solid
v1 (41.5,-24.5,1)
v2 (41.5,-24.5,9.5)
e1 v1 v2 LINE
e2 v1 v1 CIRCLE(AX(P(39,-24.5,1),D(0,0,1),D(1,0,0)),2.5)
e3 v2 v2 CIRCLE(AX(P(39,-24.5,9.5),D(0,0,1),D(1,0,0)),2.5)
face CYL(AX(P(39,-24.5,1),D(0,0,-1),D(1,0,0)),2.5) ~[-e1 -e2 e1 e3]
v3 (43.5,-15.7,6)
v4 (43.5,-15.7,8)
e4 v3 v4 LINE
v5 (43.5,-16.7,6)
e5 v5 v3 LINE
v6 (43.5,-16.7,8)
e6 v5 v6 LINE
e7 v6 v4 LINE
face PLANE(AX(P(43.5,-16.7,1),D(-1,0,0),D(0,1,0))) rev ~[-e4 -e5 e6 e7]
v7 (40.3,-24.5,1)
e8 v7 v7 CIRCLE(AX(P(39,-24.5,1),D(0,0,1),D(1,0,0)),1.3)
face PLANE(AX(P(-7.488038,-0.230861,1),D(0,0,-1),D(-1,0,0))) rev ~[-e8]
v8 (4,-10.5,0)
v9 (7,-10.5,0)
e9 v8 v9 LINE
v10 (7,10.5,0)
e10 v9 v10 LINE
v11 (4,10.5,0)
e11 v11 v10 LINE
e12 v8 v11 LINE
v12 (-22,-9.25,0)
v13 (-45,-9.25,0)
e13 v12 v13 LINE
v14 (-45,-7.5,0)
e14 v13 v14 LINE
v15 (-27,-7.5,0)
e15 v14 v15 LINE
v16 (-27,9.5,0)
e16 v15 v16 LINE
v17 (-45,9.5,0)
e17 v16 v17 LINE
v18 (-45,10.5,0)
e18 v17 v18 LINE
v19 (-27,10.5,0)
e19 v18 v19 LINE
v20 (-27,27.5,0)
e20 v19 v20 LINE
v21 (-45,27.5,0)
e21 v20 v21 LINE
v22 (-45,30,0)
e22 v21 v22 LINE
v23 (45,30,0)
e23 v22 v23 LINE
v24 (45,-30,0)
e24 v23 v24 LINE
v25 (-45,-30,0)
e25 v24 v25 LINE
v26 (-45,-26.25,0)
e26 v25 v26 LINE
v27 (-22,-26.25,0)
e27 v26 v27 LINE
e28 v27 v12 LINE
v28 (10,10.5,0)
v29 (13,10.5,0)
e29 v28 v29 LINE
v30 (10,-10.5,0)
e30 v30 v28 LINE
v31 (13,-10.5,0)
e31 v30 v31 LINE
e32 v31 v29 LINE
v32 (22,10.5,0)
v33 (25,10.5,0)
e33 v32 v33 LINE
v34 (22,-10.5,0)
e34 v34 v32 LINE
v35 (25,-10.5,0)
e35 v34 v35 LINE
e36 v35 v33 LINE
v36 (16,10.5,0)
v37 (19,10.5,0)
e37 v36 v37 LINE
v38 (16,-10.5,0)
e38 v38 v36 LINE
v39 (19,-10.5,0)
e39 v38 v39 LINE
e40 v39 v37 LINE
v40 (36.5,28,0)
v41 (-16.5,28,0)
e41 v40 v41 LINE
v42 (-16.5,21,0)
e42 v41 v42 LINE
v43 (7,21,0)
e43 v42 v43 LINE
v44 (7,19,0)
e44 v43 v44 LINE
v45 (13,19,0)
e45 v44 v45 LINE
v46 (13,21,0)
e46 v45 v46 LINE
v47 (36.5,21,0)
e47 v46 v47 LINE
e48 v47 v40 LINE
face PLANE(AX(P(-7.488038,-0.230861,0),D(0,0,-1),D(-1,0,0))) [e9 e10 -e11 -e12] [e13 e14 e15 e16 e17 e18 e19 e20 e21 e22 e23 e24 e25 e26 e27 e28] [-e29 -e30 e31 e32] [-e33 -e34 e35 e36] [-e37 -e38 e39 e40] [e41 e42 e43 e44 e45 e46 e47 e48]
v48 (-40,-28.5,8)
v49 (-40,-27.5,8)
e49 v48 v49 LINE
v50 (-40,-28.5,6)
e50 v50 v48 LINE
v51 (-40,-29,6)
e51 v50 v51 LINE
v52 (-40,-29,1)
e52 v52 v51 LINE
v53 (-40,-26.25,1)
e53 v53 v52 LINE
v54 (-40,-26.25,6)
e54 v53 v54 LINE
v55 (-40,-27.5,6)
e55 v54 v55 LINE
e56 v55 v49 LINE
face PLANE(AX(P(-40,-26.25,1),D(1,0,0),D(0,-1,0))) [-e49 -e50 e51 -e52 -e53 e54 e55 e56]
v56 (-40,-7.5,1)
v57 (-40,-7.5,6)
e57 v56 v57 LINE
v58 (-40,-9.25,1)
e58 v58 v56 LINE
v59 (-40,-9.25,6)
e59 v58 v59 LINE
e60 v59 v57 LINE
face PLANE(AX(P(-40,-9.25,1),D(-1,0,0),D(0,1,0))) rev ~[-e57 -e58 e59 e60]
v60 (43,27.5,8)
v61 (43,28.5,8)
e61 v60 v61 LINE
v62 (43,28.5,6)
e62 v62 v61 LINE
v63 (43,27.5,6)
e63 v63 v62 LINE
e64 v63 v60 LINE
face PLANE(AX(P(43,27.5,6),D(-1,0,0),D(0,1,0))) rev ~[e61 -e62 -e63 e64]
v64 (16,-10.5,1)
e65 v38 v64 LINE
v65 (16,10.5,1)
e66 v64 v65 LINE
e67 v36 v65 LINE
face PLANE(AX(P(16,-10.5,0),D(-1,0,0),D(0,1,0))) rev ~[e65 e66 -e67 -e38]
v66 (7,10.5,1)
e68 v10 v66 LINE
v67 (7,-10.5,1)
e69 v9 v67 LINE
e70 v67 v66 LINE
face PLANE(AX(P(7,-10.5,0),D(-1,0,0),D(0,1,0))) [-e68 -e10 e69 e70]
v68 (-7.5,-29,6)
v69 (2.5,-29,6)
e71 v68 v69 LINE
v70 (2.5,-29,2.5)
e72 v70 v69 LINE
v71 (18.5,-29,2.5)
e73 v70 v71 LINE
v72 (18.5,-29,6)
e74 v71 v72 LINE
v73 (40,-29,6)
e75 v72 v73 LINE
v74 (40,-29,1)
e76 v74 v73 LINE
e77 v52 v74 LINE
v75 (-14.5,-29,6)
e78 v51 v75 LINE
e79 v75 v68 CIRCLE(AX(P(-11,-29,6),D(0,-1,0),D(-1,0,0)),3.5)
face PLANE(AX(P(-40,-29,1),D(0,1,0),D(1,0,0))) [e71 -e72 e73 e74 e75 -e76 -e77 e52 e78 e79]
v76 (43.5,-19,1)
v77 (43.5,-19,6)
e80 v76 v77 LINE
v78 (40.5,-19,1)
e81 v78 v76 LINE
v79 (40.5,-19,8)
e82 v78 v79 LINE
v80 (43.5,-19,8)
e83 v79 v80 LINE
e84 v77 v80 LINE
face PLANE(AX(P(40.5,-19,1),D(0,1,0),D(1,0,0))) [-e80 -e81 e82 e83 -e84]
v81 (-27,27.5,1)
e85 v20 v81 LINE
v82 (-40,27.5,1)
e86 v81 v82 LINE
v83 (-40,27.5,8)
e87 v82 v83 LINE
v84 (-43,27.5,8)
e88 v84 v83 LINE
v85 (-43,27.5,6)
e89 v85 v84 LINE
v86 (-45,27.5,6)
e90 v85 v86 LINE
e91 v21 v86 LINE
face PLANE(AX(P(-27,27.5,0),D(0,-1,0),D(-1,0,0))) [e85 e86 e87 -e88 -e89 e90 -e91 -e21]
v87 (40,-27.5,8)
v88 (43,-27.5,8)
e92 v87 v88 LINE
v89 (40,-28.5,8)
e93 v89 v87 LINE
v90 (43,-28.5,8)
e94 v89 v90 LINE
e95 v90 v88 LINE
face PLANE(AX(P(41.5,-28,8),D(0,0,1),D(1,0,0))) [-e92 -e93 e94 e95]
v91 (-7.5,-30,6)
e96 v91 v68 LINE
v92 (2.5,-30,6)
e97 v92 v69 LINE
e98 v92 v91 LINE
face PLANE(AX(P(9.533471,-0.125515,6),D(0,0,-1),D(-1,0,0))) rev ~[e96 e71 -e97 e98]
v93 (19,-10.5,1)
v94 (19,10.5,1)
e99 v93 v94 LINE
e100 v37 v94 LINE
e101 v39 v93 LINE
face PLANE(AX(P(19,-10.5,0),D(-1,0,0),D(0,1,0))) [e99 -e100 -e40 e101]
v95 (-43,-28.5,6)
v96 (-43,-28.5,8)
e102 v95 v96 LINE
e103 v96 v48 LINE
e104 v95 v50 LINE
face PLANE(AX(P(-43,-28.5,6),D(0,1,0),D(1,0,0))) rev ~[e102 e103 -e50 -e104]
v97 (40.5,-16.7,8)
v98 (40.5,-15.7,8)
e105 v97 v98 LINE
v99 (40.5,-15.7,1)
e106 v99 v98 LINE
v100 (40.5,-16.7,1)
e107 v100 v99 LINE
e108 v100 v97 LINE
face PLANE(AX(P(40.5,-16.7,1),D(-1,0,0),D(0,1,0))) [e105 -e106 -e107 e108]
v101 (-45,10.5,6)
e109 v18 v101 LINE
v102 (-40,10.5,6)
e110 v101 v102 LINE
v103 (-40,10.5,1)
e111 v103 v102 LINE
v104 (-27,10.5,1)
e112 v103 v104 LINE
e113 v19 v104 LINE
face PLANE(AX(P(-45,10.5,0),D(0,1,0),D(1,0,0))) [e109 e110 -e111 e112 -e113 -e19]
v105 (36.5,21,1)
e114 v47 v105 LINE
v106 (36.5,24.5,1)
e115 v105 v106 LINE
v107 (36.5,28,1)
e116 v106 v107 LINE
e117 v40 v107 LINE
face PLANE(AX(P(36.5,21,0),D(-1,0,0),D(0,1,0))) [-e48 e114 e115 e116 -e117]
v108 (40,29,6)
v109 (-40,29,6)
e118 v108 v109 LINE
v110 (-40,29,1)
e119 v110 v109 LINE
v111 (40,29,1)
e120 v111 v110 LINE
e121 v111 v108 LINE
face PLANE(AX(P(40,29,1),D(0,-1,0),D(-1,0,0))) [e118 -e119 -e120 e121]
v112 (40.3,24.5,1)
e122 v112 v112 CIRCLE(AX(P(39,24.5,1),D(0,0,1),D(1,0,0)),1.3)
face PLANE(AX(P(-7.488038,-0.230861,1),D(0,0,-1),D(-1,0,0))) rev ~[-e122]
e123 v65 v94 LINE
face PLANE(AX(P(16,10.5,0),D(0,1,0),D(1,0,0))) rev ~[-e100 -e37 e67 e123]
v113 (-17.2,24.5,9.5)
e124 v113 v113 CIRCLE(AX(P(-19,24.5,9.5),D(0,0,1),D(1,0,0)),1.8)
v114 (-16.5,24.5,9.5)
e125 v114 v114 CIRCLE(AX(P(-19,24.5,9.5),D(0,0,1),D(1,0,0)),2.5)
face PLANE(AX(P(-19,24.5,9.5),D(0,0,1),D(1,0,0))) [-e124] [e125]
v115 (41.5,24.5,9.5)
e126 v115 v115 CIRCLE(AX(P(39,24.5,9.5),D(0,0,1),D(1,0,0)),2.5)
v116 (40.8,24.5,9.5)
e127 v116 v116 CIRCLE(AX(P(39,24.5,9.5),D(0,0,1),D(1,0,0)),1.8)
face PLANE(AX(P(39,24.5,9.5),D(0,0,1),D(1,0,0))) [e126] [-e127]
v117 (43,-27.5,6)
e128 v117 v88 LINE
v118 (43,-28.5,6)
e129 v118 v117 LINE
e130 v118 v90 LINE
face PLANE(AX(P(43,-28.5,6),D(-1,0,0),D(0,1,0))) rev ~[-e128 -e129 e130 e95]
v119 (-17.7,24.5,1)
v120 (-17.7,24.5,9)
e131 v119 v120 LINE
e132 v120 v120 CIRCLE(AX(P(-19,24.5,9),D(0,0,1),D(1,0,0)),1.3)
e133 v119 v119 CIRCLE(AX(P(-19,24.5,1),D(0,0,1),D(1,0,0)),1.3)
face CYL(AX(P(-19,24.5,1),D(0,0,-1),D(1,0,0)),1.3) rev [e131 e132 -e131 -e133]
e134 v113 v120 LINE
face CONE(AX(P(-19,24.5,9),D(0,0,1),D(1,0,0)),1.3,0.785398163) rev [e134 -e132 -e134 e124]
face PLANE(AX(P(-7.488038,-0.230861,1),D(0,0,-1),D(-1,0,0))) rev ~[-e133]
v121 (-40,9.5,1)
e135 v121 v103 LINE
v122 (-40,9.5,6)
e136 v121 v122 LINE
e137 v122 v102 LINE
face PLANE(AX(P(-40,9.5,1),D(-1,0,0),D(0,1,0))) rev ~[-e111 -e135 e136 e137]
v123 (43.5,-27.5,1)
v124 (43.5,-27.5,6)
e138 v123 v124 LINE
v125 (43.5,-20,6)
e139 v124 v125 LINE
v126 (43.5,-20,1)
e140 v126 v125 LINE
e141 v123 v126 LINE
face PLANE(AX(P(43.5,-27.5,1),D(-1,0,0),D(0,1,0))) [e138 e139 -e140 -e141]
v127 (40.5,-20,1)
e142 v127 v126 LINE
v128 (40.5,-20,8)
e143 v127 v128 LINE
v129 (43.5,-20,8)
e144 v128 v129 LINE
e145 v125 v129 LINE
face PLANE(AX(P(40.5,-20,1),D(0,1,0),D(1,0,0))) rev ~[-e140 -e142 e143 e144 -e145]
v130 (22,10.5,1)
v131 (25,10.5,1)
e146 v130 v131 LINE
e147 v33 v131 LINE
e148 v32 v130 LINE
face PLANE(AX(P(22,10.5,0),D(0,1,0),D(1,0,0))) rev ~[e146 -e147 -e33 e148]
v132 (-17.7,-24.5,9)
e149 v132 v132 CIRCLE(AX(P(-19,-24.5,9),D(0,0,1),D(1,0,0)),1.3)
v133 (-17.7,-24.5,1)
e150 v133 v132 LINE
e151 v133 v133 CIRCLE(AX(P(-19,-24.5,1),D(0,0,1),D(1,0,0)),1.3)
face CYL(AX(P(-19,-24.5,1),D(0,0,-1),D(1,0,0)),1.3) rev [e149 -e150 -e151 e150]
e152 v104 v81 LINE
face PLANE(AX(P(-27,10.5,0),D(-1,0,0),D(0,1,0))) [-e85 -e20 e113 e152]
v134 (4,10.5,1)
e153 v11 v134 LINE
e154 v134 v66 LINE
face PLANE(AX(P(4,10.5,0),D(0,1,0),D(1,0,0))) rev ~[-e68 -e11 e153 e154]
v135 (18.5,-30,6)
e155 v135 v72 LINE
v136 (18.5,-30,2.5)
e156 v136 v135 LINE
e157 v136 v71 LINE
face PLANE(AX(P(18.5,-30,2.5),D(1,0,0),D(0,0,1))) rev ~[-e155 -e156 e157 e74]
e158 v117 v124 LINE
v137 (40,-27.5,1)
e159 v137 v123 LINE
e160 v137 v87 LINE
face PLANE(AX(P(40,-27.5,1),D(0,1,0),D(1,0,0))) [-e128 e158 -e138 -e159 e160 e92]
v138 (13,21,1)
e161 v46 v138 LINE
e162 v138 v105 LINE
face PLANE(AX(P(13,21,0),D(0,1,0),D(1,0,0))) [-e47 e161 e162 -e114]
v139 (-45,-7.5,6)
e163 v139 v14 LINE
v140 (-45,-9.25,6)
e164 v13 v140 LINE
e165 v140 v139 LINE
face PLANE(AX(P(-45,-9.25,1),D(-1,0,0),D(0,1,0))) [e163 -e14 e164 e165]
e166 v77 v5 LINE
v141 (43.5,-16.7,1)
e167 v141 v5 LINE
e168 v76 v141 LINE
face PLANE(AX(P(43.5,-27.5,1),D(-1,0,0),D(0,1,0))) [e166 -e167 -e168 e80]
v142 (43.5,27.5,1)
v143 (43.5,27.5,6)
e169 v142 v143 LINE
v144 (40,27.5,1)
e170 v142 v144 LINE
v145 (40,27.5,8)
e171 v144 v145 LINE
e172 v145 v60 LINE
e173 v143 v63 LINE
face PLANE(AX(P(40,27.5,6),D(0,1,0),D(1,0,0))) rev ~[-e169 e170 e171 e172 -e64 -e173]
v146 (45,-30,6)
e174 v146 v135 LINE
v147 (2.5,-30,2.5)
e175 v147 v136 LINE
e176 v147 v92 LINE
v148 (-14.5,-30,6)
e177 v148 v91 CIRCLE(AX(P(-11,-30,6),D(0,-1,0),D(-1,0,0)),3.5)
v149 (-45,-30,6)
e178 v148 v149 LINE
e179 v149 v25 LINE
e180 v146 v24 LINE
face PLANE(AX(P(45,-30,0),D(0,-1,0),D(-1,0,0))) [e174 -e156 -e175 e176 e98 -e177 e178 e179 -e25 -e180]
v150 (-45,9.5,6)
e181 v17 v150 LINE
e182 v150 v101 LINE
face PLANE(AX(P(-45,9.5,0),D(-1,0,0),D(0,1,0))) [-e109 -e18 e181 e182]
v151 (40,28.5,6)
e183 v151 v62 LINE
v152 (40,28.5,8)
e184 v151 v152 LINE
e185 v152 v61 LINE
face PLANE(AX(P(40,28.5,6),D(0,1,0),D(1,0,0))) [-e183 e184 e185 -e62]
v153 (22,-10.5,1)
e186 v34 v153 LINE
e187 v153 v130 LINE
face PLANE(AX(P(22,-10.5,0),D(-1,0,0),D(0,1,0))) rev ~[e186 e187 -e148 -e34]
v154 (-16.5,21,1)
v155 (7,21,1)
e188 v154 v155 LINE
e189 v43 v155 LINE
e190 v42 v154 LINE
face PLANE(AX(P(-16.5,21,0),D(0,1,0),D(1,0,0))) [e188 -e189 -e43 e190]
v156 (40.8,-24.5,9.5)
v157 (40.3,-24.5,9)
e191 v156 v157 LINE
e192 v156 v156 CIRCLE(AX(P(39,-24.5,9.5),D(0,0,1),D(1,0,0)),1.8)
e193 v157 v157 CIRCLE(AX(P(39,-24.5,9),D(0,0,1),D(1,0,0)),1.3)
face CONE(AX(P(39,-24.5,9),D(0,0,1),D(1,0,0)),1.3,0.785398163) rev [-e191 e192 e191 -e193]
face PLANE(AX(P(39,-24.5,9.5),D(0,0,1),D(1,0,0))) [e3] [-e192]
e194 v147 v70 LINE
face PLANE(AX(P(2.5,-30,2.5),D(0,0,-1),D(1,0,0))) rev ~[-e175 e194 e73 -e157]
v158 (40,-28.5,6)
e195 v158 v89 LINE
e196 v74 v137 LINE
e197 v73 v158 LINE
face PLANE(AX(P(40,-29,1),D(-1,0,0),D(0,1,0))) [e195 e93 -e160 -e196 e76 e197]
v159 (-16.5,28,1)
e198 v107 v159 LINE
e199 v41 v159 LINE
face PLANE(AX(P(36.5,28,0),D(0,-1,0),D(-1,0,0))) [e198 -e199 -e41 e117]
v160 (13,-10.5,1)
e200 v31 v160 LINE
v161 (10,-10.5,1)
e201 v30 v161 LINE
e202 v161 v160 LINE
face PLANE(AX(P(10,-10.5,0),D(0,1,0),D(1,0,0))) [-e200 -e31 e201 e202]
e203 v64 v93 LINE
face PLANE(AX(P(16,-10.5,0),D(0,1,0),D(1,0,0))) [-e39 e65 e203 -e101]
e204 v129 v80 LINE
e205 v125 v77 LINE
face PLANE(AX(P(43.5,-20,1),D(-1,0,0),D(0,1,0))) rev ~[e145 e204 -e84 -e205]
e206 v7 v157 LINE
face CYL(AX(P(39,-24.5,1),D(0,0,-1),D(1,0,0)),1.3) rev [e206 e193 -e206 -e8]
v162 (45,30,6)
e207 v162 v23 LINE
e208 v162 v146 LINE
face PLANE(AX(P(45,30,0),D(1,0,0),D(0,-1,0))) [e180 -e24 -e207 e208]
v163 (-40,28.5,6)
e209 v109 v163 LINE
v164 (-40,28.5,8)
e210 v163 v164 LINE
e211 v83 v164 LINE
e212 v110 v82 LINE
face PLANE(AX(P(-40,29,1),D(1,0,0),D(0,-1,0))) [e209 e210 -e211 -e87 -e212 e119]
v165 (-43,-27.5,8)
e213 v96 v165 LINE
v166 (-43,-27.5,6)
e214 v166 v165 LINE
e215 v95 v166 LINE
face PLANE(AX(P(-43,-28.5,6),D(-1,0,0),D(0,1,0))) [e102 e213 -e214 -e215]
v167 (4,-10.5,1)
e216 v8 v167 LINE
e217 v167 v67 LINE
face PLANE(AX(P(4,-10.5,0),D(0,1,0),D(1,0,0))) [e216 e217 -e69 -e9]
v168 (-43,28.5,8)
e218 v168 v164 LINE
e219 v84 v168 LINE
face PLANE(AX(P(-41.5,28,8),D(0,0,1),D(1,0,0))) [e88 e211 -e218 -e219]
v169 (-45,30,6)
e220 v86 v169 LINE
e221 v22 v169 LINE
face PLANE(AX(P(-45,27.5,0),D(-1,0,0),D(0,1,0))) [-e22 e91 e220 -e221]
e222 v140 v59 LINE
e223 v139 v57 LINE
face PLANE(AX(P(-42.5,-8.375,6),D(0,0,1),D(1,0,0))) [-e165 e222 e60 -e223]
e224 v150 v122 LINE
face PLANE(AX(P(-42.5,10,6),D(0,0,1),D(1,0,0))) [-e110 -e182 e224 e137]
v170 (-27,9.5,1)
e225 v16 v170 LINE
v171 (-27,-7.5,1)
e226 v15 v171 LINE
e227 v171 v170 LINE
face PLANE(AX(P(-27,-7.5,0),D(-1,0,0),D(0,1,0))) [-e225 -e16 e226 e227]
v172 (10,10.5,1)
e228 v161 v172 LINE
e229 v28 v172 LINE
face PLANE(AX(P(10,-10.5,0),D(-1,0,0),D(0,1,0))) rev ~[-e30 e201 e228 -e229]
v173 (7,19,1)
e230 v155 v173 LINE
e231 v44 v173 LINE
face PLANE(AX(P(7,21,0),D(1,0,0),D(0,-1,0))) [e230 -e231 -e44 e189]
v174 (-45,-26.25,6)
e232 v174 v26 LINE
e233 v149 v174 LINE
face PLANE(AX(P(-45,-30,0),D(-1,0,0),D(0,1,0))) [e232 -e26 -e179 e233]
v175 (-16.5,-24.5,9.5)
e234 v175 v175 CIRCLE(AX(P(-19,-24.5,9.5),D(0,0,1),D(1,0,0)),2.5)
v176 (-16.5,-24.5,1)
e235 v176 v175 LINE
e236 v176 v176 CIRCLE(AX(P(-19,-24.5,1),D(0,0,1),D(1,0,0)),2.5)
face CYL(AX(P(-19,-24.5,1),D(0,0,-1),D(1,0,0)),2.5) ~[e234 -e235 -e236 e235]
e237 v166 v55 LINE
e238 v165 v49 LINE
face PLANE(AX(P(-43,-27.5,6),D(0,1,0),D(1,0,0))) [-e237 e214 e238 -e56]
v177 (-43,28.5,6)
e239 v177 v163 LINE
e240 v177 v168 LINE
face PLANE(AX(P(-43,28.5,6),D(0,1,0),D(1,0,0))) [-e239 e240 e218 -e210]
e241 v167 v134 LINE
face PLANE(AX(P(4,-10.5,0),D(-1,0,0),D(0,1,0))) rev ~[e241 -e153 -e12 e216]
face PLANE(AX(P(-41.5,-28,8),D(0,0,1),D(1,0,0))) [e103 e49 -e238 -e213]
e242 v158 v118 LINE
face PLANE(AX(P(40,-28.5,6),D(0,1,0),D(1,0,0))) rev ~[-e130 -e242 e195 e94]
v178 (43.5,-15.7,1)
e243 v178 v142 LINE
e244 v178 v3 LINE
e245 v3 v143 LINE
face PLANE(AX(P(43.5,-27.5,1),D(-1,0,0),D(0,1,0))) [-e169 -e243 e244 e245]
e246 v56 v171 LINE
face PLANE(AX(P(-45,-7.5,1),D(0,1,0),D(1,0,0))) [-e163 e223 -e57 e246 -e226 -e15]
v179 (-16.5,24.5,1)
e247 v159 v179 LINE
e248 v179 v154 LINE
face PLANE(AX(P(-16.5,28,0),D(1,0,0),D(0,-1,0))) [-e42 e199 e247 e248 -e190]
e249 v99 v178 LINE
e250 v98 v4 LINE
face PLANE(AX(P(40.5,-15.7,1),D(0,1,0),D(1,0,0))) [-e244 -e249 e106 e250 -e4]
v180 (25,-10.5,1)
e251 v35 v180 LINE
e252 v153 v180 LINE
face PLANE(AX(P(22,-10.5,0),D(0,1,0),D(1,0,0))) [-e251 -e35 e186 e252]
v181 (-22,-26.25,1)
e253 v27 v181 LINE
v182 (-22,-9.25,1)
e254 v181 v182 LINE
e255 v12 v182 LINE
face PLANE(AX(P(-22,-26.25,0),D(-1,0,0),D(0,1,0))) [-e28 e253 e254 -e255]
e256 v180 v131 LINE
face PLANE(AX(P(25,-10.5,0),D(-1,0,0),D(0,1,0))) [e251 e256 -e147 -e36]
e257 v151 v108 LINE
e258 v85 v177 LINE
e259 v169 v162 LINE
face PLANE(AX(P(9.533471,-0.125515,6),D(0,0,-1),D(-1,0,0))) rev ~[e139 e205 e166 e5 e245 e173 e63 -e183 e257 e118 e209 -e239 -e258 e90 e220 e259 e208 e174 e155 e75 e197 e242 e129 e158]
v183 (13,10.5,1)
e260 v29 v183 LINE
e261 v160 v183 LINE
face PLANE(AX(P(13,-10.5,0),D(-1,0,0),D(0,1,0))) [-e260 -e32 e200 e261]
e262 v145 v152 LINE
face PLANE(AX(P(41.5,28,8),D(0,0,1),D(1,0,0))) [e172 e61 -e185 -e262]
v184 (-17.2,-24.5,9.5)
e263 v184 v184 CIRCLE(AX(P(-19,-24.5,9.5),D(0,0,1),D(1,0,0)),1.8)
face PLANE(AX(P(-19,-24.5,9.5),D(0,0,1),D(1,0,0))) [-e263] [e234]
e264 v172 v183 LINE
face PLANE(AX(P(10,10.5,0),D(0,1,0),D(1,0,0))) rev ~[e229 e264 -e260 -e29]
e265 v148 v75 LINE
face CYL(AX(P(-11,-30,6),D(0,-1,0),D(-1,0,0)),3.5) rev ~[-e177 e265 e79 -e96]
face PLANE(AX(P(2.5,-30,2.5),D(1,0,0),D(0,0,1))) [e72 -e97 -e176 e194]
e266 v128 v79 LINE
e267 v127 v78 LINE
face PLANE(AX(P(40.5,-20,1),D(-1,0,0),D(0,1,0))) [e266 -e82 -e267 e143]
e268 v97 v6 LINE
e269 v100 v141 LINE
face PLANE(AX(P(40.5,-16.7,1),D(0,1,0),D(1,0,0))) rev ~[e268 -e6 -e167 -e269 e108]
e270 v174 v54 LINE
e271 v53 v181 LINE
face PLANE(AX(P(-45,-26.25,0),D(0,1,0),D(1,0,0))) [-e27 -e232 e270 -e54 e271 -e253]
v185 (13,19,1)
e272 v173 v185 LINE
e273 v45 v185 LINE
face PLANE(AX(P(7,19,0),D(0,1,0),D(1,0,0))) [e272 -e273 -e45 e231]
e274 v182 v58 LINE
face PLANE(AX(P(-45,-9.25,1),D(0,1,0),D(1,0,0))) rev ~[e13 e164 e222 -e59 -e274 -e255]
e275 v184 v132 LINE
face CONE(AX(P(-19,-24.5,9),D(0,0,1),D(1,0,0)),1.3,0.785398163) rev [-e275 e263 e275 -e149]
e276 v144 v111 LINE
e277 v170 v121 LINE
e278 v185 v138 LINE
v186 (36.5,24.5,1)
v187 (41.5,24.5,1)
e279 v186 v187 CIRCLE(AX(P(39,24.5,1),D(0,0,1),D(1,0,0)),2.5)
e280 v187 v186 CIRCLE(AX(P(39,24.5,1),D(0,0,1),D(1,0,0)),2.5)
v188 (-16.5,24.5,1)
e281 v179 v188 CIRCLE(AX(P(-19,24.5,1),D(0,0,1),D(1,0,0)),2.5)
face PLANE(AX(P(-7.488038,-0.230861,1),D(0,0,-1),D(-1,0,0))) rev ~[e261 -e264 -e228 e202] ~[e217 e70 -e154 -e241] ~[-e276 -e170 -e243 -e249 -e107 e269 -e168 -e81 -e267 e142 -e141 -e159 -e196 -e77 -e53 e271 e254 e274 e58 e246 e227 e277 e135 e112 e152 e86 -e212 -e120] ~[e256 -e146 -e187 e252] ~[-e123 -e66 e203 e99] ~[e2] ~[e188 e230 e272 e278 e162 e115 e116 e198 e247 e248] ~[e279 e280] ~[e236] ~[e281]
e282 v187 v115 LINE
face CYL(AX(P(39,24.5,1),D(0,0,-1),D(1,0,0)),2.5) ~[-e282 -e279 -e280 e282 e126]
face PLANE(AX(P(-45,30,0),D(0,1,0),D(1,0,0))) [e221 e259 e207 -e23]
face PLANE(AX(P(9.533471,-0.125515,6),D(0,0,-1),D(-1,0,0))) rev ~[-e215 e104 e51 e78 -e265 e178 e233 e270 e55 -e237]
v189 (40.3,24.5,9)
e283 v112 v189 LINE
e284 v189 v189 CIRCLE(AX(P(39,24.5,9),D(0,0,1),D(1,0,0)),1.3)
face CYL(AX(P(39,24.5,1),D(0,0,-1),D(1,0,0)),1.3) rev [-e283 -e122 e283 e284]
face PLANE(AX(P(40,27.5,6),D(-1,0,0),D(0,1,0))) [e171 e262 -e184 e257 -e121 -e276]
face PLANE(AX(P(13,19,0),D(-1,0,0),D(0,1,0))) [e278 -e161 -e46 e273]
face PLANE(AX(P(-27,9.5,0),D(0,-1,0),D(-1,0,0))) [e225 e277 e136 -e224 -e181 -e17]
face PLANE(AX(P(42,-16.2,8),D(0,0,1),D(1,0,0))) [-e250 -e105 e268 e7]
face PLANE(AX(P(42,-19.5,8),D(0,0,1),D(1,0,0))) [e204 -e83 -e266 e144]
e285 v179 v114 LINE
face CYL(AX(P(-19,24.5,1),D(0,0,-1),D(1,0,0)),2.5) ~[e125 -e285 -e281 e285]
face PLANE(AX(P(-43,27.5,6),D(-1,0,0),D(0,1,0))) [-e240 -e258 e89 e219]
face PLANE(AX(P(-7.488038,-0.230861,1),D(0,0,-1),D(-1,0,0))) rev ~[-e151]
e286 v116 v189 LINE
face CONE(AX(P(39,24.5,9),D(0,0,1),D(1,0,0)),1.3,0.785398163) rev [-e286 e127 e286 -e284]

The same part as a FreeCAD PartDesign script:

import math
import FreeCAD as App
import Part
import Sketcher
from FreeCAD import Vector


def edges_at(feature, points):
    """Names of the edges that pass closest to the given points."""
    edges = feature.Shape.Edges
    near = lambda p: min(range(len(edges)), key=lambda i: edges[i].distToShape(Part.Vertex(*p))[0])
    return sorted({f"Edge{near(p) + 1}" for p in points})

doc = App.newDocument("Part")
body = doc.addObject("PartDesign::Body", "Body")

# Sketch on XY plane
sketch1 = body.newObject("Sketcher::SketchObject", "Sketch")
sketch1.AttachmentSupport = (doc.getObject("XY_Plane"), [""])
sketch1.MapMode = "FlatFace"
sketch1.addGeometry([
    Part.LineSegment(Vector(45, 30, 0), Vector(-45, 30, 0)),  # 0
    Part.LineSegment(Vector(-45, 30, 0), Vector(-45, 27.5, 0)),  # 1
    Part.LineSegment(Vector(-45, 27.5, 0), Vector(-27, 27.5, 0)),  # 2
    Part.LineSegment(Vector(-27, 27.5, 0), Vector(-27, 10.5, 0)),  # 3
    Part.LineSegment(Vector(-27, 10.5, 0), Vector(-45, 10.5, 0)),  # 4
    Part.LineSegment(Vector(-45, 10.5, 0), Vector(-45, 9.5, 0)),  # 5
    Part.LineSegment(Vector(-45, 9.5, 0), Vector(-27, 9.5, 0)),  # 6
    Part.LineSegment(Vector(-27, 9.5, 0), Vector(-27, -7.5, 0)),  # 7
    Part.LineSegment(Vector(-27, -7.5, 0), Vector(-45, -7.5, 0)),  # 8
    Part.LineSegment(Vector(-45, -7.5, 0), Vector(-45, -9.2, 0)),  # 9
    Part.LineSegment(Vector(-45, -9.2, 0), Vector(-22, -9.2, 0)),  # 10
    Part.LineSegment(Vector(-22, -9.2, 0), Vector(-22, -26.2, 0)),  # 11
    Part.LineSegment(Vector(-22, -26.2, 0), Vector(-45, -26.2, 0)),  # 12
    Part.LineSegment(Vector(-45, -26.2, 0), Vector(-45, -30, 0)),  # 13
    Part.LineSegment(Vector(-45, -30, 0), Vector(45, -30, 0)),  # 14
    Part.LineSegment(Vector(45, -30, 0), Vector(45, 30, 0)),  # 15
    Part.LineSegment(Vector(22, -10.5, 0), Vector(22, 10.5, 0)),  # 16
    Part.LineSegment(Vector(22, 10.5, 0), Vector(25, 10.5, 0)),  # 17
    Part.LineSegment(Vector(25, 10.5, 0), Vector(25, -10.5, 0)),  # 18
    Part.LineSegment(Vector(25, -10.5, 0), Vector(22, -10.5, 0)),  # 19
    Part.LineSegment(Vector(16, -10.5, 0), Vector(16, 10.5, 0)),  # 20
    Part.LineSegment(Vector(16, 10.5, 0), Vector(19, 10.5, 0)),  # 21
    Part.LineSegment(Vector(19, 10.5, 0), Vector(19, -10.5, 0)),  # 22
    Part.LineSegment(Vector(19, -10.5, 0), Vector(16, -10.5, 0)),  # 23
    Part.LineSegment(Vector(10, -10.5, 0), Vector(10, 10.5, 0)),  # 24
    Part.LineSegment(Vector(10, 10.5, 0), Vector(13, 10.5, 0)),  # 25
    Part.LineSegment(Vector(13, 10.5, 0), Vector(13, -10.5, 0)),  # 26
    Part.LineSegment(Vector(13, -10.5, 0), Vector(10, -10.5, 0)),  # 27
    Part.LineSegment(Vector(4, -10.5, 0), Vector(4, 10.5, 0)),  # 28
    Part.LineSegment(Vector(4, 10.5, 0), Vector(7, 10.5, 0)),  # 29
    Part.LineSegment(Vector(7, 10.5, 0), Vector(7, -10.5, 0)),  # 30
    Part.LineSegment(Vector(7, -10.5, 0), Vector(4, -10.5, 0)),  # 31
    Part.LineSegment(Vector(36.5, 21, 0), Vector(13, 21, 0)),  # 32
    Part.LineSegment(Vector(13, 21, 0), Vector(13, 19, 0)),  # 33
    Part.LineSegment(Vector(13, 19, 0), Vector(7, 19, 0)),  # 34
    Part.LineSegment(Vector(7, 19, 0), Vector(7, 21, 0)),  # 35
    Part.LineSegment(Vector(7, 21, 0), Vector(-16.5, 21, 0)),  # 36
    Part.LineSegment(Vector(-16.5, 21, 0), Vector(-16.5, 28, 0)),  # 37
    Part.LineSegment(Vector(-16.5, 28, 0), Vector(36.5, 28, 0)),  # 38
    Part.LineSegment(Vector(36.5, 28, 0), Vector(36.5, 21, 0)),  # 39
], False)
sketch1.addConstraint([
    Sketcher.Constraint("Coincident", 0, 2, 1, 1),
    Sketcher.Constraint("Coincident", 1, 2, 2, 1),
    Sketcher.Constraint("Coincident", 2, 2, 3, 1),
    Sketcher.Constraint("Coincident", 3, 2, 4, 1),
    Sketcher.Constraint("Coincident", 4, 2, 5, 1),
    Sketcher.Constraint("Coincident", 5, 2, 6, 1),
    Sketcher.Constraint("Coincident", 6, 2, 7, 1),
    Sketcher.Constraint("Coincident", 7, 2, 8, 1),
    Sketcher.Constraint("Coincident", 8, 2, 9, 1),
    Sketcher.Constraint("Coincident", 9, 2, 10, 1),
    Sketcher.Constraint("Coincident", 10, 2, 11, 1),
    Sketcher.Constraint("Coincident", 11, 2, 12, 1),
    Sketcher.Constraint("Coincident", 12, 2, 13, 1),
    Sketcher.Constraint("Coincident", 13, 2, 14, 1),
    Sketcher.Constraint("Coincident", 14, 2, 15, 1),
    Sketcher.Constraint("Coincident", 15, 2, 0, 1),
    Sketcher.Constraint("Coincident", 16, 2, 17, 1),
    Sketcher.Constraint("Coincident", 17, 2, 18, 1),
    Sketcher.Constraint("Coincident", 18, 2, 19, 1),
    Sketcher.Constraint("Coincident", 19, 2, 16, 1),
    Sketcher.Constraint("Coincident", 20, 2, 21, 1),
    Sketcher.Constraint("Coincident", 21, 2, 22, 1),
    Sketcher.Constraint("Coincident", 22, 2, 23, 1),
    Sketcher.Constraint("Coincident", 23, 2, 20, 1),
    Sketcher.Constraint("Coincident", 24, 2, 25, 1),
    Sketcher.Constraint("Coincident", 25, 2, 26, 1),
    Sketcher.Constraint("Coincident", 26, 2, 27, 1),
    Sketcher.Constraint("Coincident", 27, 2, 24, 1),
    Sketcher.Constraint("Coincident", 28, 2, 29, 1),
    Sketcher.Constraint("Coincident", 29, 2, 30, 1),
    Sketcher.Constraint("Coincident", 30, 2, 31, 1),
    Sketcher.Constraint("Coincident", 31, 2, 28, 1),
    Sketcher.Constraint("Coincident", 32, 2, 33, 1),
    Sketcher.Constraint("Coincident", 33, 2, 34, 1),
    Sketcher.Constraint("Coincident", 34, 2, 35, 1),
    Sketcher.Constraint("Coincident", 35, 2, 36, 1),
    Sketcher.Constraint("Coincident", 36, 2, 37, 1),
    Sketcher.Constraint("Coincident", 37, 2, 38, 1),
    Sketcher.Constraint("Coincident", 38, 2, 39, 1),
    Sketcher.Constraint("Coincident", 39, 2, 32, 1),
    Sketcher.Constraint("Horizontal", 0),
    Sketcher.Constraint("Vertical", 1),
    Sketcher.Constraint("Horizontal", 2),
    Sketcher.Constraint("Vertical", 3),
    Sketcher.Constraint("Horizontal", 4),
    Sketcher.Constraint("Vertical", 5),
    Sketcher.Constraint("Horizontal", 6),
    Sketcher.Constraint("Vertical", 7),
    Sketcher.Constraint("Horizontal", 8),
    Sketcher.Constraint("Vertical", 9),
    Sketcher.Constraint("Horizontal", 10),
    Sketcher.Constraint("Vertical", 11),
    Sketcher.Constraint("Horizontal", 12),
    Sketcher.Constraint("Vertical", 13),
    Sketcher.Constraint("Horizontal", 14),
    Sketcher.Constraint("Vertical", 15),
    Sketcher.Constraint("Vertical", 16),
    Sketcher.Constraint("Horizontal", 17),
    Sketcher.Constraint("Vertical", 18),
    Sketcher.Constraint("Horizontal", 19),
    Sketcher.Constraint("Vertical", 20),
    Sketcher.Constraint("Horizontal", 21),
    Sketcher.Constraint("Vertical", 22),
    Sketcher.Constraint("Horizontal", 23),
    Sketcher.Constraint("Vertical", 24),
    Sketcher.Constraint("Horizontal", 25),
    Sketcher.Constraint("Vertical", 26),
    Sketcher.Constraint("Horizontal", 27),
    Sketcher.Constraint("Vertical", 28),
    Sketcher.Constraint("Horizontal", 29),
    Sketcher.Constraint("Vertical", 30),
    Sketcher.Constraint("Horizontal", 31),
    Sketcher.Constraint("Horizontal", 32),
    Sketcher.Constraint("Vertical", 33),
    Sketcher.Constraint("Horizontal", 34),
    Sketcher.Constraint("Vertical", 35),
    Sketcher.Constraint("Horizontal", 36),
    Sketcher.Constraint("Vertical", 37),
    Sketcher.Constraint("Horizontal", 38),
    Sketcher.Constraint("Vertical", 39),
    Sketcher.Constraint("Symmetric", 0, 2, 14, 2, -1, 1),
    Sketcher.Constraint("Horizontal", 4, 2, 16, 2),
    Sketcher.Constraint("Horizontal", 17, 2, 20, 2),
    Sketcher.Constraint("Horizontal", 19, 2, 22, 2),
    Sketcher.Constraint("Horizontal", 21, 2, 24, 2),
    Sketcher.Constraint("Horizontal", 23, 2, 26, 2),
    Sketcher.Constraint("Horizontal", 25, 2, 28, 2),
    Sketcher.Constraint("Horizontal", 27, 2, 30, 2),
    Sketcher.Constraint("Horizontal", 32, 2, 35, 2),
    Sketcher.Constraint("Vertical", 1, 2, 4, 2),
    Sketcher.Constraint("Vertical", 3, 2, 6, 2),
    Sketcher.Constraint("Vertical", 5, 2, 8, 2),
    Sketcher.Constraint("Vertical", 9, 2, 12, 2),
    Sketcher.Constraint("Vertical", 26, 2, 32, 2),
    Sketcher.Constraint("Vertical", 30, 2, 34, 2),
    Sketcher.Constraint("Equal", 19, 21),
    Sketcher.Constraint("Equal", 23, 25),
    Sketcher.Constraint("Equal", 27, 29),
    Sketcher.Constraint("Equal", 32, 36),
    Sketcher.Constraint("Equal", 3, 7),
    Sketcher.Constraint("Equal", 7, 11),
    Sketcher.Constraint("DistanceX", 0, 2, 0, 1, 90.0),
    Sketcher.Constraint("DistanceX", 2, 1, 2, 2, 18.0),
    Sketcher.Constraint("DistanceX", 10, 1, 10, 2, 23.0),
    Sketcher.Constraint("DistanceX", 17, 1, 17, 2, 3.0),
    Sketcher.Constraint("DistanceX", 34, 2, 34, 1, 6.0),
    Sketcher.Constraint("DistanceX", 38, 1, 38, 2, 53.0),
    Sketcher.Constraint("DistanceY", 3, 2, 3, 1, 17.0),
    Sketcher.Constraint("DistanceY", 5, 2, 5, 1, 1.0),
    Sketcher.Constraint("DistanceY", 15, 1, 15, 2, 60.0),
    Sketcher.Constraint("DistanceY", 16, 1, 16, 2, 21.0),
    Sketcher.Constraint("DistanceY", 33, 2, 33, 1, 2.0),
    Sketcher.Constraint("DistanceY", 37, 1, 37, 2, 7.0),
    Sketcher.Constraint("DistanceY", 1, 2, 1, 1, 2.5),
    Sketcher.Constraint("DistanceX", -1, 1, 16, 2, 22.0),
    Sketcher.Constraint("DistanceX", -1, 1, 20, 2, 16.0),
    Sketcher.Constraint("DistanceX", -1, 1, 24, 2, 10.0),
    Sketcher.Constraint("DistanceY", -1, 1, 32, 2, 21.0),
    Sketcher.Constraint("DistanceY", 9, 2, 9, 1, 1.75),
])
pad1 = body.newObject("PartDesign::Pad", "Pad")
pad1.Profile = sketch1
pad1.Length = 1

# Sketch on XY plane
sketch2 = body.newObject("Sketcher::SketchObject", "Sketch001")
sketch2.AttachmentSupport = (doc.getObject("XY_Plane"), [""])
sketch2.MapMode = "FlatFace"
sketch2.AttachmentOffset = App.Placement(Vector(0, 0, 1), App.Rotation())
sketch2.addGeometry([
    Part.LineSegment(Vector(-45, -7.5, 0), Vector(-45, -9.2, 0)),  # 0
    Part.LineSegment(Vector(-45, -9.2, 0), Vector(-40, -9.2, 0)),  # 1
    Part.LineSegment(Vector(-40, -9.2, 0), Vector(-40, -7.5, 0)),  # 2
    Part.LineSegment(Vector(-40, -7.5, 0), Vector(-45, -7.5, 0)),  # 3
    Part.LineSegment(Vector(-45, 10.5, 0), Vector(-45, 9.5, 0)),  # 4
    Part.LineSegment(Vector(-45, 9.5, 0), Vector(-40, 9.5, 0)),  # 5
    Part.LineSegment(Vector(-40, 9.5, 0), Vector(-40, 10.5, 0)),  # 6
    Part.LineSegment(Vector(-40, 10.5, 0), Vector(-45, 10.5, 0)),  # 7
    Part.LineSegment(Vector(45, 30, 0), Vector(-45, 30, 0)),  # 8
    Part.LineSegment(Vector(-45, 30, 0), Vector(-45, 27.5, 0)),  # 9
    Part.LineSegment(Vector(-45, 27.5, 0), Vector(-40, 27.5, 0)),  # 10
    Part.LineSegment(Vector(-40, 27.5, 0), Vector(-40, 29, 0)),  # 11
    Part.LineSegment(Vector(-40, 29, 0), Vector(40, 29, 0)),  # 12
    Part.LineSegment(Vector(40, 29, 0), Vector(40, 27.5, 0)),  # 13
    Part.LineSegment(Vector(40, 27.5, 0), Vector(43.5, 27.5, 0)),  # 14
    Part.LineSegment(Vector(43.5, 27.5, 0), Vector(43.5, -27.5, 0)),  # 15
    Part.LineSegment(Vector(43.5, -27.5, 0), Vector(40, -27.5, 0)),  # 16
    Part.LineSegment(Vector(40, -27.5, 0), Vector(40, -29, 0)),  # 17
    Part.LineSegment(Vector(40, -29, 0), Vector(-40, -29, 0)),  # 18
    Part.LineSegment(Vector(-40, -29, 0), Vector(-40, -26.2, 0)),  # 19
    Part.LineSegment(Vector(-40, -26.2, 0), Vector(-45, -26.2, 0)),  # 20
    Part.LineSegment(Vector(-45, -26.2, 0), Vector(-45, -30, 0)),  # 21
    Part.LineSegment(Vector(-45, -30, 0), Vector(45, -30, 0)),  # 22
    Part.LineSegment(Vector(45, -30, 0), Vector(45, 30, 0)),  # 23
], False)
sketch2.addConstraint([
    Sketcher.Constraint("Coincident", 0, 2, 1, 1),
    Sketcher.Constraint("Coincident", 1, 2, 2, 1),
    Sketcher.Constraint("Coincident", 2, 2, 3, 1),
    Sketcher.Constraint("Coincident", 3, 2, 0, 1),
    Sketcher.Constraint("Coincident", 4, 2, 5, 1),
    Sketcher.Constraint("Coincident", 5, 2, 6, 1),
    Sketcher.Constraint("Coincident", 6, 2, 7, 1),
    Sketcher.Constraint("Coincident", 7, 2, 4, 1),
    Sketcher.Constraint("Coincident", 8, 2, 9, 1),
    Sketcher.Constraint("Coincident", 9, 2, 10, 1),
    Sketcher.Constraint("Coincident", 10, 2, 11, 1),
    Sketcher.Constraint("Coincident", 11, 2, 12, 1),
    Sketcher.Constraint("Coincident", 12, 2, 13, 1),
    Sketcher.Constraint("Coincident", 13, 2, 14, 1),
    Sketcher.Constraint("Coincident", 14, 2, 15, 1),
    Sketcher.Constraint("Coincident", 15, 2, 16, 1),
    Sketcher.Constraint("Coincident", 16, 2, 17, 1),
    Sketcher.Constraint("Coincident", 17, 2, 18, 1),
    Sketcher.Constraint("Coincident", 18, 2, 19, 1),
    Sketcher.Constraint("Coincident", 19, 2, 20, 1),
    Sketcher.Constraint("Coincident", 20, 2, 21, 1),
    Sketcher.Constraint("Coincident", 21, 2, 22, 1),
    Sketcher.Constraint("Coincident", 22, 2, 23, 1),
    Sketcher.Constraint("Coincident", 23, 2, 8, 1),
    Sketcher.Constraint("Vertical", 0),
    Sketcher.Constraint("Horizontal", 1),
    Sketcher.Constraint("Vertical", 2),
    Sketcher.Constraint("Horizontal", 3),
    Sketcher.Constraint("Vertical", 4),
    Sketcher.Constraint("Horizontal", 5),
    Sketcher.Constraint("Vertical", 6),
    Sketcher.Constraint("Horizontal", 7),
    Sketcher.Constraint("Horizontal", 8),
    Sketcher.Constraint("Vertical", 9),
    Sketcher.Constraint("Horizontal", 10),
    Sketcher.Constraint("Vertical", 11),
    Sketcher.Constraint("Horizontal", 12),
    Sketcher.Constraint("Vertical", 13),
    Sketcher.Constraint("Horizontal", 14),
    Sketcher.Constraint("Vertical", 15),
    Sketcher.Constraint("Horizontal", 16),
    Sketcher.Constraint("Vertical", 17),
    Sketcher.Constraint("Horizontal", 18),
    Sketcher.Constraint("Vertical", 19),
    Sketcher.Constraint("Horizontal", 20),
    Sketcher.Constraint("Vertical", 21),
    Sketcher.Constraint("Horizontal", 22),
    Sketcher.Constraint("Vertical", 23),
    Sketcher.Constraint("Symmetric", 10, 2, 16, 2, -1, 1),
    Sketcher.Constraint("Symmetric", 12, 2, 18, 2, -1, 1),
    Sketcher.Constraint("Symmetric", 8, 2, 22, 2, -1, 1),
    Sketcher.Constraint("Symmetric", 10, 2, 13, 2, -2),
    Sketcher.Constraint("Vertical", 3, 2, 4, 2),
    Sketcher.Constraint("Vertical", 2, 2, 5, 2),
    Sketcher.Constraint("Vertical", 7, 2, 8, 2),
    Sketcher.Constraint("Vertical", 6, 2, 10, 2),
    Sketcher.Constraint("Vertical", 9, 2, 20, 2),
    Sketcher.Constraint("DistanceX", 1, 1, 1, 2, 5.0),
    Sketcher.Constraint("DistanceX", 8, 2, 8, 1, 90.0),
    Sketcher.Constraint("DistanceY", 4, 2, 4, 1, 1.0),
    Sketcher.Constraint("DistanceY", 15, 2, 15, 1, 55.0),
    Sketcher.Constraint("DistanceY", 23, 1, 23, 2, 60.0),
    Sketcher.Constraint("DistanceX", 14, 1, 14, 2, 3.5),
    Sketcher.Constraint("DistanceY", 11, 1, 11, 2, 1.5),
    Sketcher.Constraint("DistanceY", 3, 2, 4, 2, 17.0),
    Sketcher.Constraint("DistanceY", 7, 2, 9, 2, 17.0),
    Sketcher.Constraint("DistanceY", 19, 2, 1, 2, 17.0),
    Sketcher.Constraint("DistanceY", 0, 2, 0, 1, 1.75),
])
pad2 = body.newObject("PartDesign::Pad", "Pad001")
pad2.Profile = sketch2
pad2.Length = 5

# Sketch on XY plane
sketch3 = body.newObject("Sketcher::SketchObject", "Sketch002")
sketch3.AttachmentSupport = (doc.getObject("XY_Plane"), [""])
sketch3.MapMode = "FlatFace"
sketch3.AttachmentOffset = App.Placement(Vector(0, 0, 6), App.Rotation())
sketch3.addGeometry([
    Part.LineSegment(Vector(40, 28.5, 0), Vector(40, 27.5, 0)),  # 0
    Part.LineSegment(Vector(40, 27.5, 0), Vector(43, 27.5, 0)),  # 1
    Part.LineSegment(Vector(43, 27.5, 0), Vector(43, 28.5, 0)),  # 2
    Part.LineSegment(Vector(43, 28.5, 0), Vector(40, 28.5, 0)),  # 3
    Part.LineSegment(Vector(-43, 28.5, 0), Vector(-43, 27.5, 0)),  # 4
    Part.LineSegment(Vector(-43, 27.5, 0), Vector(-40, 27.5, 0)),  # 5
    Part.LineSegment(Vector(-40, 27.5, 0), Vector(-40, 28.5, 0)),  # 6
    Part.LineSegment(Vector(-40, 28.5, 0), Vector(-43, 28.5, 0)),  # 7
    Part.LineSegment(Vector(-43, -27.5, 0), Vector(-43, -28.5, 0)),  # 8
    Part.LineSegment(Vector(-43, -28.5, 0), Vector(-40, -28.5, 0)),  # 9
    Part.LineSegment(Vector(-40, -28.5, 0), Vector(-40, -27.5, 0)),  # 10
    Part.LineSegment(Vector(-40, -27.5, 0), Vector(-43, -27.5, 0)),  # 11
    Part.LineSegment(Vector(40, -27.5, 0), Vector(40, -28.5, 0)),  # 12
    Part.LineSegment(Vector(40, -28.5, 0), Vector(43, -28.5, 0)),  # 13
    Part.LineSegment(Vector(43, -28.5, 0), Vector(43, -27.5, 0)),  # 14
    Part.LineSegment(Vector(43, -27.5, 0), Vector(40, -27.5, 0)),  # 15
], False)
sketch3.addConstraint([
    Sketcher.Constraint("Coincident", 0, 2, 1, 1),
    Sketcher.Constraint("Coincident", 1, 2, 2, 1),
    Sketcher.Constraint("Coincident", 2, 2, 3, 1),
    Sketcher.Constraint("Coincident", 3, 2, 0, 1),
    Sketcher.Constraint("Coincident", 4, 2, 5, 1),
    Sketcher.Constraint("Coincident", 5, 2, 6, 1),
    Sketcher.Constraint("Coincident", 6, 2, 7, 1),
    Sketcher.Constraint("Coincident", 7, 2, 4, 1),
    Sketcher.Constraint("Coincident", 8, 2, 9, 1),
    Sketcher.Constraint("Coincident", 9, 2, 10, 1),
    Sketcher.Constraint("Coincident", 10, 2, 11, 1),
    Sketcher.Constraint("Coincident", 11, 2, 8, 1),
    Sketcher.Constraint("Coincident", 12, 2, 13, 1),
    Sketcher.Constraint("Coincident", 13, 2, 14, 1),
    Sketcher.Constraint("Coincident", 14, 2, 15, 1),
    Sketcher.Constraint("Coincident", 15, 2, 12, 1),
    Sketcher.Constraint("Vertical", 0),
    Sketcher.Constraint("Horizontal", 1),
    Sketcher.Constraint("Vertical", 2),
    Sketcher.Constraint("Horizontal", 3),
    Sketcher.Constraint("Vertical", 4),
    Sketcher.Constraint("Horizontal", 5),
    Sketcher.Constraint("Vertical", 6),
    Sketcher.Constraint("Horizontal", 7),
    Sketcher.Constraint("Vertical", 8),
    Sketcher.Constraint("Horizontal", 9),
    Sketcher.Constraint("Vertical", 10),
    Sketcher.Constraint("Horizontal", 11),
    Sketcher.Constraint("Vertical", 12),
    Sketcher.Constraint("Horizontal", 13),
    Sketcher.Constraint("Vertical", 14),
    Sketcher.Constraint("Horizontal", 15),
    Sketcher.Constraint("Symmetric", 2, 2, 8, 2, -1, 1),
    Sketcher.Constraint("Symmetric", 0, 2, 10, 2, -1, 1),
    Sketcher.Constraint("Symmetric", 6, 2, 12, 2, -1, 1),
    Sketcher.Constraint("Symmetric", 4, 2, 14, 2, -1, 1),
    Sketcher.Constraint("Symmetric", 1, 2, 4, 2, -2),
    Sketcher.Constraint("Symmetric", 3, 2, 6, 2, -2),
    Sketcher.Constraint("DistanceX", 1, 1, 1, 2, 3.0),
    Sketcher.Constraint("DistanceY", 0, 2, 0, 1, 1.0),
    Sketcher.Constraint("DistanceX", -1, 1, 0, 2, 40.0),
    Sketcher.Constraint("DistanceY", 8, 2, 4, 2, 56.0),
])
pad3 = body.newObject("PartDesign::Pad", "Pad002")
pad3.Profile = sketch3
pad3.Length = 2

# Sketch on XY plane
sketch4 = body.newObject("Sketcher::SketchObject", "Sketch003")
sketch4.AttachmentSupport = (doc.getObject("XY_Plane"), [""])
sketch4.MapMode = "FlatFace"
sketch4.AttachmentOffset = App.Placement(Vector(0, 0, 1), App.Rotation())
sketch4.addGeometry([
    Part.Circle(Vector(-19, 24.5, 0), Vector(0, 0, 1), 2.5),  # 0
    Part.Circle(Vector(-19, 24.5, 0), Vector(0, 0, 1), 1.3),  # 1
    Part.Circle(Vector(39, 24.5, 0), Vector(0, 0, 1), 2.5),  # 2
    Part.Circle(Vector(39, 24.5, 0), Vector(0, 0, 1), 1.3),  # 3
    Part.Circle(Vector(-19, -24.5, 0), Vector(0, 0, 1), 2.5),  # 4
    Part.Circle(Vector(-19, -24.5, 0), Vector(0, 0, 1), 1.3),  # 5
    Part.Circle(Vector(39, -24.5, 0), Vector(0, 0, 1), 2.5),  # 6
    Part.Circle(Vector(39, -24.5, 0), Vector(0, 0, 1), 1.3),  # 7
], False)
sketch4.addConstraint([
    Sketcher.Constraint("Coincident", 1, 3, 0, 3),
    Sketcher.Constraint("Coincident", 3, 3, 2, 3),
    Sketcher.Constraint("Coincident", 5, 3, 4, 3),
    Sketcher.Constraint("Coincident", 7, 3, 6, 3),
    Sketcher.Constraint("Equal", 0, 2),
    Sketcher.Constraint("Equal", 1, 3),
    Sketcher.Constraint("Equal", 2, 4),
    Sketcher.Constraint("Equal", 3, 5),
    Sketcher.Constraint("Equal", 4, 6),
    Sketcher.Constraint("Equal", 5, 7),
    Sketcher.Constraint("Symmetric", 0, 3, 4, 3, -1),
    Sketcher.Constraint("Symmetric", 2, 3, 6, 3, -1),
    Sketcher.Constraint("Horizontal", 1, 3, 2, 3),
    Sketcher.Constraint("Diameter", 0, 5.0),
    Sketcher.Constraint("Diameter", 1, 2.6),
    Sketcher.Constraint("DistanceX", 0, 3, -1, 1, 19.0),
    Sketcher.Constraint("DistanceX", -1, 1, 2, 3, 39.0),
    Sketcher.Constraint("DistanceY", 4, 3, 0, 3, 49.0),
])
pad4 = body.newObject("PartDesign::Pad", "Pad003")
pad4.Profile = sketch4
pad4.Length = 8.5

# Sketch on XZ plane
sketch5 = body.newObject("Sketcher::SketchObject", "Sketch004")
sketch5.AttachmentSupport = (doc.getObject("XZ_Plane"), [""])
sketch5.MapMode = "FlatFace"
sketch5.AttachmentOffset = App.Placement(Vector(0, 0, 30), App.Rotation())
sketch5.addGeometry([
    Part.ArcOfCircle(Part.Circle(Vector(-11, 6, 0), Vector(0, 0, 1), 3.5), math.radians(180), math.radians(360)),  # 0
    Part.LineSegment(Vector(-7.5, 6, 0), Vector(-14.5, 6, 0)),  # 1
    Part.LineSegment(Vector(2.5, 6, 0), Vector(2.5, 2.5, 0)),  # 2
    Part.LineSegment(Vector(2.5, 2.5, 0), Vector(18.5, 2.5, 0)),  # 3
    Part.LineSegment(Vector(18.5, 2.5, 0), Vector(18.5, 6, 0)),  # 4
    Part.LineSegment(Vector(18.5, 6, 0), Vector(2.5, 6, 0)),  # 5
], False)
sketch5.addConstraint([
    Sketcher.Constraint("Coincident", 0, 1, 1, 2),
    Sketcher.Constraint("Coincident", 1, 1, 0, 2),
    Sketcher.Constraint("Coincident", 2, 2, 3, 1),
    Sketcher.Constraint("Coincident", 3, 2, 4, 1),
    Sketcher.Constraint("Coincident", 4, 2, 5, 1),
    Sketcher.Constraint("Coincident", 5, 2, 2, 1),
    Sketcher.Constraint("Horizontal", 1),
    Sketcher.Constraint("Vertical", 2),
    Sketcher.Constraint("Horizontal", 3),
    Sketcher.Constraint("Vertical", 4),
    Sketcher.Constraint("Horizontal", 5),
    Sketcher.Constraint("Horizontal", 1, 1, 4, 2),
    Sketcher.Constraint("Radius", 0, 3.5),
    Sketcher.Constraint("DistanceX", 3, 1, 3, 2, 16.0),
    Sketcher.Constraint("DistanceY", 2, 2, 2, 1, 3.5),
    Sketcher.Constraint("DistanceX", 0, 3, -1, 1, 11.0),
    Sketcher.Constraint("DistanceY", -1, 1, 0, 3, 6.0),
    Sketcher.Constraint("DistanceY", -1, 1, 0, 1, 6.0),
    Sketcher.Constraint("DistanceX", 1, 1, 2, 2, 10.0),
])
pocket1 = body.newObject("PartDesign::Pocket", "Pocket")
pocket1.Profile = sketch5
pocket1.Length = 1
doc.recompute()

chamfer = body.newObject("PartDesign::Chamfer", "Chamfer")
chamfer.Base = (pocket1, edges_at(pocket1, [
    (-20.3, 24.5, 9.5),
    (37.7, 24.5, 9.5),
    (37.7, -24.5, 9.5),
    (-20.3, -24.5, 9.5),
]))
chamfer.Size = 0.5

# Sketch on XY plane
sketch6 = body.newObject("Sketcher::SketchObject", "Sketch005")
sketch6.AttachmentSupport = (doc.getObject("XY_Plane"), [""])
sketch6.MapMode = "FlatFace"
sketch6.AttachmentOffset = App.Placement(Vector(0, 0, 1), App.Rotation())
sketch6.addGeometry([
    Part.LineSegment(Vector(40.5, -15.7, 0), Vector(40.5, -16.7, 0)),  # 0
    Part.LineSegment(Vector(40.5, -16.7, 0), Vector(43.5, -16.7, 0)),  # 1
    Part.LineSegment(Vector(43.5, -16.7, 0), Vector(43.5, -15.7, 0)),  # 2
    Part.LineSegment(Vector(43.5, -15.7, 0), Vector(40.5, -15.7, 0)),  # 3
    Part.LineSegment(Vector(40.5, -19, 0), Vector(40.5, -20, 0)),  # 4
    Part.LineSegment(Vector(40.5, -20, 0), Vector(43.5, -20, 0)),  # 5
    Part.LineSegment(Vector(43.5, -20, 0), Vector(43.5, -19, 0)),  # 6
    Part.LineSegment(Vector(43.5, -19, 0), Vector(40.5, -19, 0)),  # 7
], False)
sketch6.addConstraint([
    Sketcher.Constraint("Coincident", 0, 2, 1, 1),
    Sketcher.Constraint("Coincident", 1, 2, 2, 1),
    Sketcher.Constraint("Coincident", 2, 2, 3, 1),
    Sketcher.Constraint("Coincident", 3, 2, 0, 1),
    Sketcher.Constraint("Coincident", 4, 2, 5, 1),
    Sketcher.Constraint("Coincident", 5, 2, 6, 1),
    Sketcher.Constraint("Coincident", 6, 2, 7, 1),
    Sketcher.Constraint("Coincident", 7, 2, 4, 1),
    Sketcher.Constraint("Vertical", 0),
    Sketcher.Constraint("Horizontal", 1),
    Sketcher.Constraint("Vertical", 2),
    Sketcher.Constraint("Horizontal", 3),
    Sketcher.Constraint("Vertical", 4),
    Sketcher.Constraint("Horizontal", 5),
    Sketcher.Constraint("Vertical", 6),
    Sketcher.Constraint("Horizontal", 7),
    Sketcher.Constraint("Vertical", 3, 2, 4, 2),
    Sketcher.Constraint("Vertical", 2, 2, 5, 2),
    Sketcher.Constraint("Equal", 2, 4),
    Sketcher.Constraint("DistanceX", 1, 1, 1, 2, 3.0),
    Sketcher.Constraint("DistanceY", 0, 2, 0, 1, 1.0),
    Sketcher.Constraint("DistanceY", 4, 2, -1, 1, 20.0),
    Sketcher.Constraint("DistanceX", -1, 1, 0, 2, 40.5),
    Sketcher.Constraint("DistanceY", 0, 2, -1, 1, 16.7),
])
pad5 = body.newObject("PartDesign::Pad", "Pad004")
pad5.Profile = sketch6
pad5.Length = 7

doc.recompute()
